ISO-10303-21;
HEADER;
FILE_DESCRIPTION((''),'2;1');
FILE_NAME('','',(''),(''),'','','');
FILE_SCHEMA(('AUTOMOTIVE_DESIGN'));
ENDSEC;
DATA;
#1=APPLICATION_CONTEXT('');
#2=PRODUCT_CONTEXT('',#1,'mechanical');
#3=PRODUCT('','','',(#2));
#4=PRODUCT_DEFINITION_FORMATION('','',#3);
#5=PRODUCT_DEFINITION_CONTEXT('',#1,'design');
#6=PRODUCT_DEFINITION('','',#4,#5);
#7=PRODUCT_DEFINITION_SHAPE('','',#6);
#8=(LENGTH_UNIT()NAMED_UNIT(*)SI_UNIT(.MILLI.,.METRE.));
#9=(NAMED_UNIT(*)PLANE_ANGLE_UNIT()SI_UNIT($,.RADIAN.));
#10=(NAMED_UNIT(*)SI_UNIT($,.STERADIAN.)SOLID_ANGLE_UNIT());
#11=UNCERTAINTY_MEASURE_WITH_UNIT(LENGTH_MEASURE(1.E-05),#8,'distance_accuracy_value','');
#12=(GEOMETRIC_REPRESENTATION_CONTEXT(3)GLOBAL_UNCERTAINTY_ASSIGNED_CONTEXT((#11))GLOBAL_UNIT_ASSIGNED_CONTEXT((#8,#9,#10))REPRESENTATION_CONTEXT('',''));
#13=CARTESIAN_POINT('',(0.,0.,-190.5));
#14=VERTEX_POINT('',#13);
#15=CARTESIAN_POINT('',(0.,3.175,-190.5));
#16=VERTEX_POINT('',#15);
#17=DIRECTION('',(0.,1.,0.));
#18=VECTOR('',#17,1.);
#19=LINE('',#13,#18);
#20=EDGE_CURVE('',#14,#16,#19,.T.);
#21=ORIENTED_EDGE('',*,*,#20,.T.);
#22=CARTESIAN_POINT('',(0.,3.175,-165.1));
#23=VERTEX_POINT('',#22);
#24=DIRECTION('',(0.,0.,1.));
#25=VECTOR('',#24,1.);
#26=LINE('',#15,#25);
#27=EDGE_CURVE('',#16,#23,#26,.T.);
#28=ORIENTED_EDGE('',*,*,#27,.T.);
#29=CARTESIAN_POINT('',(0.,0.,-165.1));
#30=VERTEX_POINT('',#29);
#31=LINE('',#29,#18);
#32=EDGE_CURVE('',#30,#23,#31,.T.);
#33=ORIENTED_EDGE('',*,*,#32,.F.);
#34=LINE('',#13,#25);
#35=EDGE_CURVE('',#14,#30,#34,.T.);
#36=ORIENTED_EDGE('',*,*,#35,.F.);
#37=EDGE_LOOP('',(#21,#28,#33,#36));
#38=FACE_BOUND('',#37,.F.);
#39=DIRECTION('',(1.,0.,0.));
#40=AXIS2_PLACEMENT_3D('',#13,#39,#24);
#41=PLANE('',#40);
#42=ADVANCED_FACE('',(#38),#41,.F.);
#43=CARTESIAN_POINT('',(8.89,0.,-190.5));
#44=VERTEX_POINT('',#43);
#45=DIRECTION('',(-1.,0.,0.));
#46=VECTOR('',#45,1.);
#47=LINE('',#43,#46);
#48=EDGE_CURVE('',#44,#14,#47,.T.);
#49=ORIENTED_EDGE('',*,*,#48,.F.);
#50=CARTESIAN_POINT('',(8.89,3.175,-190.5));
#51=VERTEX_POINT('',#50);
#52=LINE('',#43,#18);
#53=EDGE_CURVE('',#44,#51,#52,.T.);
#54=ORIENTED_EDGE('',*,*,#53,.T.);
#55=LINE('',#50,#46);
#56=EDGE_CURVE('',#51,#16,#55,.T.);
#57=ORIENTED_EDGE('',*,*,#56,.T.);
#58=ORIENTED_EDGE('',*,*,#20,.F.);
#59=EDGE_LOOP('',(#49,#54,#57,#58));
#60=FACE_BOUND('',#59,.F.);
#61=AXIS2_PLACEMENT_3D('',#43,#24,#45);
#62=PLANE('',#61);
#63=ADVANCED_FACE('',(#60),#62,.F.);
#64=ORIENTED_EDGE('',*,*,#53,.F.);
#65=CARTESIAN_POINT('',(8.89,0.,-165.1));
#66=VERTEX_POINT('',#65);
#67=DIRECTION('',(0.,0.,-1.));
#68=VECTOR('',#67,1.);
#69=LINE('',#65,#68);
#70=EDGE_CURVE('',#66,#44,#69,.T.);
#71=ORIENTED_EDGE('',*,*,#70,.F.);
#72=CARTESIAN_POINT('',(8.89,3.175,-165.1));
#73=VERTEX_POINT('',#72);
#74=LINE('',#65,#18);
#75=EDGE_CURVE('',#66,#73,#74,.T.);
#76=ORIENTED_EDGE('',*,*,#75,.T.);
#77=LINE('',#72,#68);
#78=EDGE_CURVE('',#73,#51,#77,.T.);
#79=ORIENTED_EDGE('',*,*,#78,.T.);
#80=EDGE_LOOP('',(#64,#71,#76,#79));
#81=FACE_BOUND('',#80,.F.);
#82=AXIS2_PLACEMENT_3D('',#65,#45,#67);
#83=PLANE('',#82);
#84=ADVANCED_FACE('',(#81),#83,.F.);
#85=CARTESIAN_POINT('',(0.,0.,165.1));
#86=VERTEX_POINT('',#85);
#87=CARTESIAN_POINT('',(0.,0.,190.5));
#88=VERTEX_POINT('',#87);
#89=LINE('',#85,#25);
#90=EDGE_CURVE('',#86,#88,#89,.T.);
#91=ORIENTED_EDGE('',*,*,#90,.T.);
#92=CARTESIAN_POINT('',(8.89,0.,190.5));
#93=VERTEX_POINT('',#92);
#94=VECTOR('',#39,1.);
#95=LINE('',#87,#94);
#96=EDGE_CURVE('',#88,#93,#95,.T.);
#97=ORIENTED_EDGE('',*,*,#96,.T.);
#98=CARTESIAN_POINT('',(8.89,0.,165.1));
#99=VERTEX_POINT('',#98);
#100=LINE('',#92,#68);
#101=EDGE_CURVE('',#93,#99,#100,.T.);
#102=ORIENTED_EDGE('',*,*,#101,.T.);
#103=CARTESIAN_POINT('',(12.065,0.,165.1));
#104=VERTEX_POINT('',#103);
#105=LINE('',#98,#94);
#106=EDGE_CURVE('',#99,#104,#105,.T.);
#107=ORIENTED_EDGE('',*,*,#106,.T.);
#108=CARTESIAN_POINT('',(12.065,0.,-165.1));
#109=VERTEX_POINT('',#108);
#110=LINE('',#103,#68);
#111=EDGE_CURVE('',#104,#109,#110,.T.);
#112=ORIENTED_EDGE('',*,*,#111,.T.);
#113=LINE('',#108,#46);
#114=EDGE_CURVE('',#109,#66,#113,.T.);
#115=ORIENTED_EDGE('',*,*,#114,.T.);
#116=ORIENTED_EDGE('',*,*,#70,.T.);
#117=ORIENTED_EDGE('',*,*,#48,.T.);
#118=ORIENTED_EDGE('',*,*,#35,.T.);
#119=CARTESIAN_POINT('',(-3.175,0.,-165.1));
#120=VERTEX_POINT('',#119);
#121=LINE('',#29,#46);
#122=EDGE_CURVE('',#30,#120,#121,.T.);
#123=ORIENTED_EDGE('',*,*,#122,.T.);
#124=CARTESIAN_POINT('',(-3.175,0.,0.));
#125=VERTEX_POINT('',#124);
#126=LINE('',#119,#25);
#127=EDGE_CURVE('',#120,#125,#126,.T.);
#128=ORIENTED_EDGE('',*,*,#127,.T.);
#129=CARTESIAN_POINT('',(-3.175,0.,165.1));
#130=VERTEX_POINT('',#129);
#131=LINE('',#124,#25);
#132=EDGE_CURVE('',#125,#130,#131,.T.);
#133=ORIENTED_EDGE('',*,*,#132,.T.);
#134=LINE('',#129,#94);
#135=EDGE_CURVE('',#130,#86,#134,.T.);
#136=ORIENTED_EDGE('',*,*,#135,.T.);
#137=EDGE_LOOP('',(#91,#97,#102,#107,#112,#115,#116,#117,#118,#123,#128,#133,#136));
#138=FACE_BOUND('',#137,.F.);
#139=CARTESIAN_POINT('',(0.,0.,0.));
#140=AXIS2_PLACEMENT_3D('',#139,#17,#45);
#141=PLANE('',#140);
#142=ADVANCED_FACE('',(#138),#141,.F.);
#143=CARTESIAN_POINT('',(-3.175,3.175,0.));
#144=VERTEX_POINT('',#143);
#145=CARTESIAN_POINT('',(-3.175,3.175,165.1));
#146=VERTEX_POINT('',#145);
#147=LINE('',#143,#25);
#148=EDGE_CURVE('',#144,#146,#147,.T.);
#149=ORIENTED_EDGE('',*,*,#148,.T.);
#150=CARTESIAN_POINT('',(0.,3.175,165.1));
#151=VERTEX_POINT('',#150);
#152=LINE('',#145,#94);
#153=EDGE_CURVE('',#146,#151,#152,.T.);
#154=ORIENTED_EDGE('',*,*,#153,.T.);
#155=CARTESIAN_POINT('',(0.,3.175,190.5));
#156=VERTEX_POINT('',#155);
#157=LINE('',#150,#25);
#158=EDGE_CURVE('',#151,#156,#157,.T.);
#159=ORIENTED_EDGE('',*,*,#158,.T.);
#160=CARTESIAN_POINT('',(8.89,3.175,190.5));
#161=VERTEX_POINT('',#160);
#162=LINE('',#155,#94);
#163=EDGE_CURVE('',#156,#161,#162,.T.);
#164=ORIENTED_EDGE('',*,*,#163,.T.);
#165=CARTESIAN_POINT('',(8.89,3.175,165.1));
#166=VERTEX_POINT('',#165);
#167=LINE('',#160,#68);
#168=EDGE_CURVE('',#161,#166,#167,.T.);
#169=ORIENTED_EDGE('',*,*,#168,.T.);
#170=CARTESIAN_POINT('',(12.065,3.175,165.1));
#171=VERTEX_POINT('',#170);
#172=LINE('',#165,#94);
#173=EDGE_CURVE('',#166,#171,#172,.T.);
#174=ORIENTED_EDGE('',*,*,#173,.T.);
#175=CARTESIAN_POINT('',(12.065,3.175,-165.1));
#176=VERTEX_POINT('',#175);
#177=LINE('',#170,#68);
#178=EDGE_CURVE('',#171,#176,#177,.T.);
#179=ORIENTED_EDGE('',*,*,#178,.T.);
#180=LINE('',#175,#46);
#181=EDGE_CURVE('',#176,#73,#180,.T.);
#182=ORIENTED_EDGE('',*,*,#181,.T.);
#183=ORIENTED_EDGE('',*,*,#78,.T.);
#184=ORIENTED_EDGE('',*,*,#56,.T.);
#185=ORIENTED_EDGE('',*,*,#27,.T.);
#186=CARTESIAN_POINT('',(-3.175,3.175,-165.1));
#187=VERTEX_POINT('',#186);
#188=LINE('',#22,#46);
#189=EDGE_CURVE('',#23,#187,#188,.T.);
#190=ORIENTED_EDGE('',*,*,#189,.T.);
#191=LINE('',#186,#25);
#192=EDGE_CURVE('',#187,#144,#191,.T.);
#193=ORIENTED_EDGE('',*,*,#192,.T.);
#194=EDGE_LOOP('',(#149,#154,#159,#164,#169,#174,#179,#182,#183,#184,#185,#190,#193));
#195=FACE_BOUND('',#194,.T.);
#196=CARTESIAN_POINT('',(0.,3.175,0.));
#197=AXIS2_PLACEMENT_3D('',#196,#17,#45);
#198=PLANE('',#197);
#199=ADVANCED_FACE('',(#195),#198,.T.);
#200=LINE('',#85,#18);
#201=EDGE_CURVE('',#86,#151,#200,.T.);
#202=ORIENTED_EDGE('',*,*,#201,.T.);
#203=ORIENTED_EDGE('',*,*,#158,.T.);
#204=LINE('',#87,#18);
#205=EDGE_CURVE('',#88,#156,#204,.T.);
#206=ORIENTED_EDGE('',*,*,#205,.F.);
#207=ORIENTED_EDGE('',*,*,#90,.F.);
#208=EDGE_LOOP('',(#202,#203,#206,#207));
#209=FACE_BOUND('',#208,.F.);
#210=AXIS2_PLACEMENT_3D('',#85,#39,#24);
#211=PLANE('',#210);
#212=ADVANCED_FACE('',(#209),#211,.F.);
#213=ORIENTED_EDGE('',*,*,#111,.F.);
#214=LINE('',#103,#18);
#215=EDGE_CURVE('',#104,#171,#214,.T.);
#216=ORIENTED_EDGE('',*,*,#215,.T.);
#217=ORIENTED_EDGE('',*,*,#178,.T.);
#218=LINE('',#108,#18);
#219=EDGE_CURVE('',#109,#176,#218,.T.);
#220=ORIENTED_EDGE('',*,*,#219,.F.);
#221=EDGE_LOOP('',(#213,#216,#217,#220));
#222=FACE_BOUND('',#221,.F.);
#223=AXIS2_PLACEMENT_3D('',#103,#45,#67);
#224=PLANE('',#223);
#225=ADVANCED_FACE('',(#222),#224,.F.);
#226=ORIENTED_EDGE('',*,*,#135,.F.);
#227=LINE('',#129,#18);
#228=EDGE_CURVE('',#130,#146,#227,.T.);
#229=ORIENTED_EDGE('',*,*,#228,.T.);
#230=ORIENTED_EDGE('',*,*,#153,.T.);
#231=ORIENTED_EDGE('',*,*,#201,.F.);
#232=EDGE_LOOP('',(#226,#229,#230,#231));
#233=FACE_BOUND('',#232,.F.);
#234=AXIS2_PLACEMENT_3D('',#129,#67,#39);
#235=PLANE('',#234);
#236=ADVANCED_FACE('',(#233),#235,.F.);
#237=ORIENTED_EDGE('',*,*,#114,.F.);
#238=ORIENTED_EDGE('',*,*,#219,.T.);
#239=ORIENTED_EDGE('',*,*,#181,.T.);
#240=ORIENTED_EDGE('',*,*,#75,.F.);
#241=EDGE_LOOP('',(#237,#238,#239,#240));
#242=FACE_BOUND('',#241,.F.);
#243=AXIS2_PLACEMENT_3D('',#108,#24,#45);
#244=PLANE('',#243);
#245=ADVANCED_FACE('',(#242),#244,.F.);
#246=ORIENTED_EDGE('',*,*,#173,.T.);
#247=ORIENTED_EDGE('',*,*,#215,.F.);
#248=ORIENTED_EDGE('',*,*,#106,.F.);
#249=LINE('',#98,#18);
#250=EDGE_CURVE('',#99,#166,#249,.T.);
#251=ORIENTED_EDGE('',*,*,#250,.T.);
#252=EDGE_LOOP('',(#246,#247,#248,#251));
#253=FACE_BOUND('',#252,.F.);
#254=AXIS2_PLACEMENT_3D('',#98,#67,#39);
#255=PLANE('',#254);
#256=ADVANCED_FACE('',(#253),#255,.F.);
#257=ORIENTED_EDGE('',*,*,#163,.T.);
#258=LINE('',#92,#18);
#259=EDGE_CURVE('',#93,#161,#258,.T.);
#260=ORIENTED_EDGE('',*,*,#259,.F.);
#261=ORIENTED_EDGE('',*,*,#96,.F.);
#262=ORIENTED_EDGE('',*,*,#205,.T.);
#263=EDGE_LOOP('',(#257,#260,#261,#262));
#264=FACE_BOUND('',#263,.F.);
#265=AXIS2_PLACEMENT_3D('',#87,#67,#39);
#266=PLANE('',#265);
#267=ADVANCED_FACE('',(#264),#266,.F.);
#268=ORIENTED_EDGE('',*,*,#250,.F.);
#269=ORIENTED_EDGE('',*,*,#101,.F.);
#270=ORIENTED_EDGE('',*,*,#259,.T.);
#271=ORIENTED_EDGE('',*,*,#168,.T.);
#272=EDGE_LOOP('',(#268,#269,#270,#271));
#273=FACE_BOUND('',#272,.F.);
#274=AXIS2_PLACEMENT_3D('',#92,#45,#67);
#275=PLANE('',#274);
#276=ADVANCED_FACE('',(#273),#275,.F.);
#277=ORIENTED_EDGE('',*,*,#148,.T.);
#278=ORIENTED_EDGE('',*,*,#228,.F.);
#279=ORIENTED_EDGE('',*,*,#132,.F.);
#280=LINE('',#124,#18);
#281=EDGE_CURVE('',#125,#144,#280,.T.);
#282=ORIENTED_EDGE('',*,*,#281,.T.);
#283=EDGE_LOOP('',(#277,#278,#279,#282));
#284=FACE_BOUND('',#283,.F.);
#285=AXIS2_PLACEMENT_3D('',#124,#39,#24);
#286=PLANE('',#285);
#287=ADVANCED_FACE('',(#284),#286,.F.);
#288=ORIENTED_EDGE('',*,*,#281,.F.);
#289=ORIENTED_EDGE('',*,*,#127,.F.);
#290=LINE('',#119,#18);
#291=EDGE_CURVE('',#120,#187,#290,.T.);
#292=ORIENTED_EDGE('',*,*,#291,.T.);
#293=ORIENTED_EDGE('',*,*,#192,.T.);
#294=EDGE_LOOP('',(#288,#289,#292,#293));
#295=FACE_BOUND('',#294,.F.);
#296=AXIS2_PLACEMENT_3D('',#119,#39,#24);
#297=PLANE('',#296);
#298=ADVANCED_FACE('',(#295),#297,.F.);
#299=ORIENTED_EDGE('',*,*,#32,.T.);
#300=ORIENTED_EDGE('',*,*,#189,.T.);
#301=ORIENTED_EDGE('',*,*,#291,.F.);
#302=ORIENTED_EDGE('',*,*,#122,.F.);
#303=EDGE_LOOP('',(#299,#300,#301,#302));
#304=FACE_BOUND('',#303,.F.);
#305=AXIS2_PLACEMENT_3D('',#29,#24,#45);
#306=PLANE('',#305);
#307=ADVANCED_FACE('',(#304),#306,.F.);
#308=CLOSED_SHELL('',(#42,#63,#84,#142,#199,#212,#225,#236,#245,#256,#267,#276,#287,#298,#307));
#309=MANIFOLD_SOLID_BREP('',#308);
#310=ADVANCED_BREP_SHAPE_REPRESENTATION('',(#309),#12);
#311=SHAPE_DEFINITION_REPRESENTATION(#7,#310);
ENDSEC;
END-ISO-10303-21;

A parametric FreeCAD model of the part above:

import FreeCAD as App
import Part
import Sketcher

V = App.Vector
Q = App.Units.Quantity

doc = App.newDocument("Part")
params = doc.addObject("Spreadsheet::Sheet", "Params")
for row, (alias, value) in enumerate([
    ("sketch1_height", "13 in"),
    ("sketch1_height2", "1 in"),
    ("sketch1_width", "0.35 in"),
    ("sketch1_width2", "0.125 in"),
    ("pad1_length", "0.125 in"),
], start=1):
    params.set(f"A{row}", alias)
    params.set(f"B{row}", "=" + value)
    params.setAlias(f"B{row}", alias)

body = doc.addObject("PartDesign::Body", "Body")

# Sketch on XZ plane
sketch1 = body.newObject("Sketcher::SketchObject", "Sketch")
sketch1.AttachmentSupport = (doc.getObject("XZ_Plane"), [""])
sketch1.MapMode = "FlatFace"
sketch1.addGeometry([
    Part.LineSegment(V(-3.175, -165.1, 0), V(-3.175, 165.1, 0)),  # 0
    Part.LineSegment(V(-3.175, 165.1, 0), V(0, 165.1, 0)),  # 1
    Part.LineSegment(V(0, 165.1, 0), V(0, 190.5, 0)),  # 2
    Part.LineSegment(V(0, 190.5, 0), V(8.89, 190.5, 0)),  # 3
    Part.LineSegment(V(8.89, 190.5, 0), V(8.89, 165.1, 0)),  # 4
    Part.LineSegment(V(8.89, 165.1, 0), V(12.065, 165.1, 0)),  # 5
    Part.LineSegment(V(12.065, 165.1, 0), V(12.065, -165.1, 0)),  # 6
    Part.LineSegment(V(12.065, -165.1, 0), V(8.89, -165.1, 0)),  # 7
    Part.LineSegment(V(8.89, -165.1, 0), V(8.89, -190.5, 0)),  # 8
    Part.LineSegment(V(8.89, -190.5, 0), V(0, -190.5, 0)),  # 9
    Part.LineSegment(V(0, -190.5, 0), V(0, -165.1, 0)),  # 10
    Part.LineSegment(V(0, -165.1, 0), V(-3.175, -165.1, 0)),  # 11
], False)
sketch1.addConstraint([
    Sketcher.Constraint("Coincident", 0, 2, 1, 1),
    Sketcher.Constraint("Coincident", 1, 2, 2, 1),
    Sketcher.Constraint("Coincident", 2, 2, 3, 1),
    Sketcher.Constraint("Coincident", 3, 2, 4, 1),
    Sketcher.Constraint("Coincident", 4, 2, 5, 1),
    Sketcher.Constraint("Coincident", 5, 2, 6, 1),
    Sketcher.Constraint("Coincident", 6, 2, 7, 1),
    Sketcher.Constraint("Coincident", 7, 2, 8, 1),
    Sketcher.Constraint("Coincident", 8, 2, 9, 1),
    Sketcher.Constraint("Coincident", 9, 2, 10, 1),
    Sketcher.Constraint("Coincident", 10, 2, 11, 1),
    Sketcher.Constraint("Coincident", 11, 2, 0, 1),
    Sketcher.Constraint("Vertical", 0),
    Sketcher.Constraint("Horizontal", 1),
    Sketcher.Constraint("Vertical", 2),
    Sketcher.Constraint("Horizontal", 3),
    Sketcher.Constraint("Vertical", 4),
    Sketcher.Constraint("Horizontal", 5),
    Sketcher.Constraint("Vertical", 6),
    Sketcher.Constraint("Horizontal", 7),
    Sketcher.Constraint("Vertical", 8),
    Sketcher.Constraint("Horizontal", 9),
    Sketcher.Constraint("Vertical", 10),
    Sketcher.Constraint("Horizontal", 11),
    Sketcher.Constraint("Symmetric", 2, 2, 9, 2, -1, 1),
    Sketcher.Constraint("Symmetric", 4, 2, 7, 2, -1),
    Sketcher.Constraint("Symmetric", 1, 2, 10, 2, -1),
    Sketcher.Constraint("Horizontal", 1, 2, 4, 2),
    Sketcher.Constraint("Equal", 1, 5),
    Sketcher.Constraint("DistanceY", 0, 1, 0, 2, Q("13 in")),
    Sketcher.Constraint("DistanceY", 2, 1, 2, 2, Q("1 in")),
    Sketcher.Constraint("DistanceX", 3, 1, 3, 2, Q("0.35 in")),
    Sketcher.Constraint("DistanceX", 1, 1, 1, 2, Q("0.125 in")),
])
sketch1.setExpression("Constraints[29]", "Params.sketch1_height")
sketch1.setExpression("Constraints[30]", "Params.sketch1_height2")
sketch1.setExpression("Constraints[31]", "Params.sketch1_width")
sketch1.setExpression("Constraints[32]", "Params.sketch1_width2")
pad1 = body.newObject("PartDesign::Pad", "Pad")
pad1.Profile = sketch1
pad1.setExpression("Length", "Params.pad1_length")
pad1.Reversed = True

doc.recompute()
